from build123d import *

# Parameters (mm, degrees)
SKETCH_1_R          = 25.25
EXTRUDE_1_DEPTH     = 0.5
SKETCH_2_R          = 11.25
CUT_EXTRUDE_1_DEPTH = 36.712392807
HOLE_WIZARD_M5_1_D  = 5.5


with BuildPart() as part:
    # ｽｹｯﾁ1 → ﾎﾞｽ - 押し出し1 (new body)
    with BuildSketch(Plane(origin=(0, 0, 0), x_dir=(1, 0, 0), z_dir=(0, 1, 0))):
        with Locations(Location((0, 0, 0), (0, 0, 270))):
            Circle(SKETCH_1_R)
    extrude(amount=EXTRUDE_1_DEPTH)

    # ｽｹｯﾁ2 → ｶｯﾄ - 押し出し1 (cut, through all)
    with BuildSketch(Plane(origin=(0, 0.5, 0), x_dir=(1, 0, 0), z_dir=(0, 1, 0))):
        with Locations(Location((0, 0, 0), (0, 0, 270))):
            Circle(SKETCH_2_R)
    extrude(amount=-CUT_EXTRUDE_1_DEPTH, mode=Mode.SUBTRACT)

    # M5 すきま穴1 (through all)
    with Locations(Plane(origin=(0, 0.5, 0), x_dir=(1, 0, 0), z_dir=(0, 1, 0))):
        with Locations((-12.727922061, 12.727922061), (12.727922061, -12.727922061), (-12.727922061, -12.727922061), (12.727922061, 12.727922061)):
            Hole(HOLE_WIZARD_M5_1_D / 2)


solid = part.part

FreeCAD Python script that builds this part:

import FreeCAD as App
import Part
import Sketcher

V = App.Vector
Q = App.Units.Quantity

doc = App.newDocument("Part")
body = doc.addObject("PartDesign::Body", "Body")

sketch1 = doc.addObject("Sketcher::SketchObject", "Sketch")
body.addObject(sketch1)
sketch1.AttachmentSupport = (doc.XZ_Plane, [""])
sketch1.MapMode = "FlatFace"
sketch1.addGeometry(Part.Circle(V(0, 0, 0), V(0, 0, 1), 25.25), False)
sketch1.addConstraint([
    Sketcher.Constraint("Coincident", 0, 3, -1, 1),
    Sketcher.Constraint("Diameter", 0, Q("50.5 mm")),
])
pad1 = doc.addObject("PartDesign::Pad", "Pad")
body.addObject(pad1)
pad1.Profile = sketch1
pad1.Length = 0.5
pad1.Reversed = True

sketch2 = doc.addObject("Sketcher::SketchObject", "Sketch001")
body.addObject(sketch2)
sketch2.AttachmentSupport = (doc.XZ_Plane, [""])
sketch2.MapMode = "FlatFace"
sketch2.AttachmentOffset = App.Placement(V(0, 0, -0.5), App.Rotation())
sketch2.addGeometry(Part.Circle(V(0, 0, 0), V(0, 0, 1), 11.25), False)
sketch2.addConstraint([
    Sketcher.Constraint("Coincident", 0, 3, -1, 1),
    Sketcher.Constraint("Diameter", 0, Q("22.5 mm")),
])
pocket1 = doc.addObject("PartDesign::Pocket", "Pocket")
body.addObject(pocket1)
pocket1.Profile = sketch2
pocket1.Type = "ThroughAll"
pocket1.Reversed = True

sketch3 = doc.addObject("Sketcher::SketchObject", "Sketch002")
body.addObject(sketch3)
sketch3.AttachmentSupport = (doc.XZ_Plane, [""])
sketch3.MapMode = "FlatFace"
sketch3.AttachmentOffset = App.Placement(V(0, 0, -0.5), App.Rotation())
sketch3.addGeometry([
    Part.Circle(V(-12.727922, -12.727922, 0), V(0, 0, 1), 2.75),
    Part.Circle(V(12.727922, 12.727922, 0), V(0, 0, 1), 2.75),
    Part.Circle(V(-12.727922, 12.727922, 0), V(0, 0, 1), 2.75),
    Part.Circle(V(12.727922, -12.727922, 0), V(0, 0, 1), 2.75),
], False)
sketch3.addConstraint([
    Sketcher.Constraint("Equal", 0, 1),
    Sketcher.Constraint("Equal", 1, 2),
    Sketcher.Constraint("Equal", 2, 3),
    Sketcher.Constraint("Symmetric", 0, 3, 1, 3, -1, 1),
    Sketcher.Constraint("Symmetric", 2, 3, 3, 3, -1, 1),
    Sketcher.Constraint("Symmetric", 1, 3, 2, 3, -2),
    Sketcher.Constraint("Diameter", 0, Q("5.5 mm")),
    Sketcher.Constraint("DistanceX", 0, 3, -1, 1, Q("12.727922 mm")),
    Sketcher.Constraint("DistanceY", 0, 3, -1, 1, Q("12.727922 mm")),
])
doc.recompute()
hole = doc.addObject("PartDesign::Hole", "Hole")
body.addObject(hole)
hole.Profile = sketch3
hole.ThreadType = "None"
hole.Diameter = 5.5
hole.DepthType = "ThroughAll"
hole.Reversed = True

doc.recompute()
